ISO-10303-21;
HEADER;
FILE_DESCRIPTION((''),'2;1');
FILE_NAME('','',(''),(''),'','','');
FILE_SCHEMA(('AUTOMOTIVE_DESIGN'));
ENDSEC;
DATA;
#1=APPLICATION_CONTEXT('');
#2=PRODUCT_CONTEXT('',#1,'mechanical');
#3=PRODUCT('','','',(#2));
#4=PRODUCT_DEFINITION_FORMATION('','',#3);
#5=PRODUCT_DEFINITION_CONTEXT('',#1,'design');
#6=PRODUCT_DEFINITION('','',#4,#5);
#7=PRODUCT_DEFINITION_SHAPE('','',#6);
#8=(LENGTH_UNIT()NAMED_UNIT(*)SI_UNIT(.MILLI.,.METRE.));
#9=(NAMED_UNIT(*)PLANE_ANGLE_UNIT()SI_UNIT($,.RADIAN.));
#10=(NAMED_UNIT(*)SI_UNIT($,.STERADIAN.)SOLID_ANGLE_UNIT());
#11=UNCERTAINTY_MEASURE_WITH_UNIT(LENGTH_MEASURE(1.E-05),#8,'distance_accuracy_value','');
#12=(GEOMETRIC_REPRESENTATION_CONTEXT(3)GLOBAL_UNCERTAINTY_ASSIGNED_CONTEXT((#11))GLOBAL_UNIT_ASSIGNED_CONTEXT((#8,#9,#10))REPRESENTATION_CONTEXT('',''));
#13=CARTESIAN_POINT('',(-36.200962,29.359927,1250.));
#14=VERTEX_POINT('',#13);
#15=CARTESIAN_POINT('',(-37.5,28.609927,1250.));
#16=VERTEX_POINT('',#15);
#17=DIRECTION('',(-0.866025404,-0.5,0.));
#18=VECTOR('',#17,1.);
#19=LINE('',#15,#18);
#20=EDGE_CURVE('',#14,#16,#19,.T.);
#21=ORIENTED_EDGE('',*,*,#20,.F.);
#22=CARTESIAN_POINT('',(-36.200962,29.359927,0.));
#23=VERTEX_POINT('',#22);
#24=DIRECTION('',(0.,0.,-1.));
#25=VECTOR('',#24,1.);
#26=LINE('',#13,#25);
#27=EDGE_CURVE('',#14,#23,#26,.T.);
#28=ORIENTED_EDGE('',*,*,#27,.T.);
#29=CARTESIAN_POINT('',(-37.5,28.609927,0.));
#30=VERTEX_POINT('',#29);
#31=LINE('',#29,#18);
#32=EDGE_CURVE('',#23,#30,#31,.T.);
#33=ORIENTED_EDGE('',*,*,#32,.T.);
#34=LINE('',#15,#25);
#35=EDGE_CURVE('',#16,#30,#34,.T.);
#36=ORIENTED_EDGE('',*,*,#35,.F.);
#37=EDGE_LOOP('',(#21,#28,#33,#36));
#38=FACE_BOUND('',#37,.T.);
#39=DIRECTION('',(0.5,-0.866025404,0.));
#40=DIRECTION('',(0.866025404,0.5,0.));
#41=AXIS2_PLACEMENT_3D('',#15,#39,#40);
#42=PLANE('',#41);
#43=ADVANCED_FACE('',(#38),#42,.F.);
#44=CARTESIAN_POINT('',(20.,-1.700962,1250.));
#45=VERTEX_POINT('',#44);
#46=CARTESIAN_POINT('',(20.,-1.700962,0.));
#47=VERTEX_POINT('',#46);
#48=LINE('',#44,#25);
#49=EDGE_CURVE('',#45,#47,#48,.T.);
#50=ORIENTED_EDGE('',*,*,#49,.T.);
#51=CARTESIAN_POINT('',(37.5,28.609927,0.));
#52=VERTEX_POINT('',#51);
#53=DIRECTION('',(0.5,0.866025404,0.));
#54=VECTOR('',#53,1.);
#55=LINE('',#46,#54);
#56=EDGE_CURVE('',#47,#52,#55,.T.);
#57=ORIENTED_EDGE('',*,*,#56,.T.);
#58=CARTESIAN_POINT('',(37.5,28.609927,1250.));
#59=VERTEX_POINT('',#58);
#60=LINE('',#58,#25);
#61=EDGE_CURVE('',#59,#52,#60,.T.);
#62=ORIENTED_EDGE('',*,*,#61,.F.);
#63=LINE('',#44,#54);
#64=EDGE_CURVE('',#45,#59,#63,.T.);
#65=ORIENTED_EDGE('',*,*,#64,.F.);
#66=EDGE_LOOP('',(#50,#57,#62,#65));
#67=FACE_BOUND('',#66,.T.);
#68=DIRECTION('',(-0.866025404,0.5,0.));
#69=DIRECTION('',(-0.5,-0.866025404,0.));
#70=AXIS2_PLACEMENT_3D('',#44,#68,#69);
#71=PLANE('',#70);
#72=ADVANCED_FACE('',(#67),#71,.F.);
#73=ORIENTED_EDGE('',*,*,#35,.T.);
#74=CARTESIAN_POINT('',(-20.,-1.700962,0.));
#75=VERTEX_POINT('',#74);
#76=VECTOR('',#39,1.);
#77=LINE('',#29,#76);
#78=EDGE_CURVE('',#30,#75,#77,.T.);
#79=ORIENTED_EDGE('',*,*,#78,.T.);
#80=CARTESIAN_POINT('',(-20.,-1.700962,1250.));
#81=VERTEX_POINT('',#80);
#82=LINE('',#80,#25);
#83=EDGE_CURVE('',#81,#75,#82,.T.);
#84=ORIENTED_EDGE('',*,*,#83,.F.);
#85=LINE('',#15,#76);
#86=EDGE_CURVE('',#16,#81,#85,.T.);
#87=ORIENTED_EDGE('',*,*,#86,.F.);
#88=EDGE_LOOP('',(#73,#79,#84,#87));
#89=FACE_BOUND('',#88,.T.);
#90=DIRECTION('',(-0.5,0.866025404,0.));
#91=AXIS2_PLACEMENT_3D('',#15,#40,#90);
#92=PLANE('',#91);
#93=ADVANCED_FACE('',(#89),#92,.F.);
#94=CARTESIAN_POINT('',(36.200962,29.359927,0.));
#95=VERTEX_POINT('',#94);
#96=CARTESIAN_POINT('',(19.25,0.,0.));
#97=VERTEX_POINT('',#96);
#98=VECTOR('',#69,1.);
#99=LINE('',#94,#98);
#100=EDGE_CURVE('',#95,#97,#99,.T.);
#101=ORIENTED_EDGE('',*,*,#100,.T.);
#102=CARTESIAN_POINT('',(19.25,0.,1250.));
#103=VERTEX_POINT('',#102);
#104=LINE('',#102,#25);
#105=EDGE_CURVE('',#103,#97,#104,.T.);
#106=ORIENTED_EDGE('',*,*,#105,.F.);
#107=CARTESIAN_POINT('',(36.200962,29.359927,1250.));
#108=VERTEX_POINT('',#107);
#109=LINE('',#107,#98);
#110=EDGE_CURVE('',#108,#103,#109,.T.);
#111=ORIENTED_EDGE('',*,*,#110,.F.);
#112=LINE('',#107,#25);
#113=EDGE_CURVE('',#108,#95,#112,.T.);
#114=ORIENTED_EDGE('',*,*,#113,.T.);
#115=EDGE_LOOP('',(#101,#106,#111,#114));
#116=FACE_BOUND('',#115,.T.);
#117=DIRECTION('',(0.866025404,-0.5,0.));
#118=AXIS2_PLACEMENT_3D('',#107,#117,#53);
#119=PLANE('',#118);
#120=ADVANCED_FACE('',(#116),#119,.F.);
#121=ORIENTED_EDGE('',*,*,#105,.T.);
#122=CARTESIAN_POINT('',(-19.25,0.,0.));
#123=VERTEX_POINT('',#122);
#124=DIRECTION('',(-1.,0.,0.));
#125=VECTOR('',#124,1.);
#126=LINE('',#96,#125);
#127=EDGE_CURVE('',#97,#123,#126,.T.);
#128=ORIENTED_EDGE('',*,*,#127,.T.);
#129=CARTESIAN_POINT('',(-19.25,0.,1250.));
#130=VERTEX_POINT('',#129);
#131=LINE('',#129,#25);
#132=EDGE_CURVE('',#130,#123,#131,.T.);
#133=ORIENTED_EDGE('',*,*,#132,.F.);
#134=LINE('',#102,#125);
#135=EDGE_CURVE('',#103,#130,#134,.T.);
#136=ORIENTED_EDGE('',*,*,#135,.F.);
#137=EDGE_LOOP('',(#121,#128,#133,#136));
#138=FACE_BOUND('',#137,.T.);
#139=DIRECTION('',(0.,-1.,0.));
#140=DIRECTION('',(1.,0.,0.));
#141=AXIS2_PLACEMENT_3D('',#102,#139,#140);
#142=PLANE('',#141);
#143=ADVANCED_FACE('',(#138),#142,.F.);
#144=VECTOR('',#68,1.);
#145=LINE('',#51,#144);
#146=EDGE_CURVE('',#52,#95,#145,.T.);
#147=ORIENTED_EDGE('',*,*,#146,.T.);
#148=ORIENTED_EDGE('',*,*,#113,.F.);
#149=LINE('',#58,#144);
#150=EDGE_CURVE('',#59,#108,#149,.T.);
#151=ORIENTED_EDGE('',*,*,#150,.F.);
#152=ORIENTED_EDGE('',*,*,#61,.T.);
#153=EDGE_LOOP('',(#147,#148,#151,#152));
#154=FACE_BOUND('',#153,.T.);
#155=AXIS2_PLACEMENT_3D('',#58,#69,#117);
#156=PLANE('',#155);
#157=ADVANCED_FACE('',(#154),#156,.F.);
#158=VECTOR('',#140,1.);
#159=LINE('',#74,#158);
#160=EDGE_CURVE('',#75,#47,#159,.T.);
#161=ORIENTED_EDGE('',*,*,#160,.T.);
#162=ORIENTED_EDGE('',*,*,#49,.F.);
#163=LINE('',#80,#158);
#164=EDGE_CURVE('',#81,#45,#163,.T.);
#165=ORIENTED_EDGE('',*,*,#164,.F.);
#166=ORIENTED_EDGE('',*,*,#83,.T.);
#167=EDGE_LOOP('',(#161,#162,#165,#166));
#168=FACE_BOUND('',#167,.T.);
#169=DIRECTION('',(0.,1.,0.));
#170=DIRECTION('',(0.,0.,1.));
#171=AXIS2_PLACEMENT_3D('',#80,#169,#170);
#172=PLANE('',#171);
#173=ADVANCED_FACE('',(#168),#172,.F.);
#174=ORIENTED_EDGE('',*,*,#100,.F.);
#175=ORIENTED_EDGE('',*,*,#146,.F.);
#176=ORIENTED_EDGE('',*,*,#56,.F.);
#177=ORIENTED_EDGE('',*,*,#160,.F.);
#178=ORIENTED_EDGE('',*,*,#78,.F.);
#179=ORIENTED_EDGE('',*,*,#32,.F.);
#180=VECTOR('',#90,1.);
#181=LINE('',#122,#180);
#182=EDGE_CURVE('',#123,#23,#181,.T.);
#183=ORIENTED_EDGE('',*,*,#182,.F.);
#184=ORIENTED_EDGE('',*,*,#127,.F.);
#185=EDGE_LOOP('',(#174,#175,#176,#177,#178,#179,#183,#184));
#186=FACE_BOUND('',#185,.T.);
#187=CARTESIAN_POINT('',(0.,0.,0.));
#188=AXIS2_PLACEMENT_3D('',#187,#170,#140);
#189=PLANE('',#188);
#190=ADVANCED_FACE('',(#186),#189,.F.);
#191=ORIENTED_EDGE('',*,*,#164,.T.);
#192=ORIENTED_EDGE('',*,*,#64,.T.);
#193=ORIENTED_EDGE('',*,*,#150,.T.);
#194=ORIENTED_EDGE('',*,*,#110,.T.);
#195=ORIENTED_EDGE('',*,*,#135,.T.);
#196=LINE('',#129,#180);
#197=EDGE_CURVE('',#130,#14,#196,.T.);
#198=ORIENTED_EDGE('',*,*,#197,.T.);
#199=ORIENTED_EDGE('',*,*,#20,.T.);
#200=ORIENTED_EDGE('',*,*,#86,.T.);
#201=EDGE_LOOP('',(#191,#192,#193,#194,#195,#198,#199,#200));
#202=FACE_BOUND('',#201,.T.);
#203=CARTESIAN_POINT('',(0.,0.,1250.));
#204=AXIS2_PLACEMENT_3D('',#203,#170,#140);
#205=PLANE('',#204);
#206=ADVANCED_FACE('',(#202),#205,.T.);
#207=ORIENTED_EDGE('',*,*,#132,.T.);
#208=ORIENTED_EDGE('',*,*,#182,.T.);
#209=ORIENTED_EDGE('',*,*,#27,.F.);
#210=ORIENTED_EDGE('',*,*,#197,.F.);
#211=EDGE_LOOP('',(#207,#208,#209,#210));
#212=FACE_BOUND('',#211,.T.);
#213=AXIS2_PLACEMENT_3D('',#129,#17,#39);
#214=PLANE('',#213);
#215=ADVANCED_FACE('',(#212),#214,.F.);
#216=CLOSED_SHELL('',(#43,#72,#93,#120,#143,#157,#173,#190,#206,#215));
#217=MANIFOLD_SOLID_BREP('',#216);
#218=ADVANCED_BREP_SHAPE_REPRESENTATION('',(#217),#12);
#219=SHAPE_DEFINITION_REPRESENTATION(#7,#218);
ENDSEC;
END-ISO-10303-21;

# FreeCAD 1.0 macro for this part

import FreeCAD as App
import Part
import Sketcher

V = App.Vector
Q = App.Units.Quantity


def add_polygon(sketch, points):
    """Adds a closed chain of lines whose ends are joined by coincident constraints."""
    first, n = sketch.GeometryCount, len(points)
    for a, b in zip(points, points[1:] + points[:1]):
        sketch.addGeometry(Part.LineSegment(App.Vector(*a, 0), App.Vector(*b, 0)), False)
    for i in range(n):
        sketch.addConstraint(Sketcher.Constraint("Coincident", first + i, 2, first + (i + 1) % n, 1))

doc = App.newDocument("Part")
body = doc.addObject("PartDesign::Body", "Body")

# Sketch on XY plane
sketch1 = body.newObject("Sketcher::SketchObject", "Sketch")
sketch1.AttachmentSupport = (doc.getObject("XY_Plane"), [""])
sketch1.MapMode = "FlatFace"
add_polygon(sketch1, [(-20, -1.7), (20, -1.7), (37.5, 28.6), (36.2, 29.4), (19.2, 0), (-19.2, 0), (-36.2, 29.4), (-37.5, 28.6)])  # lines 0-7
sketch1.addConstraint([
    Sketcher.Constraint("Horizontal", 0),
    Sketcher.Constraint("Horizontal", 4),
    Sketcher.Constraint("Symmetric", 3, 2, 4, 2, -1, 1),
    Sketcher.Constraint("Symmetric", 2, 2, 5, 2, -2),
    Sketcher.Constraint("Symmetric", 1, 2, 6, 2, -2),
    Sketcher.Constraint("Perpendicular", 1, 2),
    Sketcher.Constraint("Perpendicular", 2, 3),
    Sketcher.Constraint("Perpendicular", 6, 7),
    Sketcher.Constraint("DistanceX", 0, 1, 0, 2, Q("40 mm")),
    Sketcher.Constraint("Angle", 1, Q("60 deg")),
    Sketcher.Constraint("Distance", 1, Q("35 mm")),
    Sketcher.Constraint("DistanceX", 4, 2, 4, 1, Q("38.5 mm")),
    Sketcher.Constraint("Distance", 2, Q("1.5 mm")),
])
pad1 = body.newObject("PartDesign::Pad", "Pad")
pad1.Profile = sketch1
pad1.Length = 1250

doc.recompute()
